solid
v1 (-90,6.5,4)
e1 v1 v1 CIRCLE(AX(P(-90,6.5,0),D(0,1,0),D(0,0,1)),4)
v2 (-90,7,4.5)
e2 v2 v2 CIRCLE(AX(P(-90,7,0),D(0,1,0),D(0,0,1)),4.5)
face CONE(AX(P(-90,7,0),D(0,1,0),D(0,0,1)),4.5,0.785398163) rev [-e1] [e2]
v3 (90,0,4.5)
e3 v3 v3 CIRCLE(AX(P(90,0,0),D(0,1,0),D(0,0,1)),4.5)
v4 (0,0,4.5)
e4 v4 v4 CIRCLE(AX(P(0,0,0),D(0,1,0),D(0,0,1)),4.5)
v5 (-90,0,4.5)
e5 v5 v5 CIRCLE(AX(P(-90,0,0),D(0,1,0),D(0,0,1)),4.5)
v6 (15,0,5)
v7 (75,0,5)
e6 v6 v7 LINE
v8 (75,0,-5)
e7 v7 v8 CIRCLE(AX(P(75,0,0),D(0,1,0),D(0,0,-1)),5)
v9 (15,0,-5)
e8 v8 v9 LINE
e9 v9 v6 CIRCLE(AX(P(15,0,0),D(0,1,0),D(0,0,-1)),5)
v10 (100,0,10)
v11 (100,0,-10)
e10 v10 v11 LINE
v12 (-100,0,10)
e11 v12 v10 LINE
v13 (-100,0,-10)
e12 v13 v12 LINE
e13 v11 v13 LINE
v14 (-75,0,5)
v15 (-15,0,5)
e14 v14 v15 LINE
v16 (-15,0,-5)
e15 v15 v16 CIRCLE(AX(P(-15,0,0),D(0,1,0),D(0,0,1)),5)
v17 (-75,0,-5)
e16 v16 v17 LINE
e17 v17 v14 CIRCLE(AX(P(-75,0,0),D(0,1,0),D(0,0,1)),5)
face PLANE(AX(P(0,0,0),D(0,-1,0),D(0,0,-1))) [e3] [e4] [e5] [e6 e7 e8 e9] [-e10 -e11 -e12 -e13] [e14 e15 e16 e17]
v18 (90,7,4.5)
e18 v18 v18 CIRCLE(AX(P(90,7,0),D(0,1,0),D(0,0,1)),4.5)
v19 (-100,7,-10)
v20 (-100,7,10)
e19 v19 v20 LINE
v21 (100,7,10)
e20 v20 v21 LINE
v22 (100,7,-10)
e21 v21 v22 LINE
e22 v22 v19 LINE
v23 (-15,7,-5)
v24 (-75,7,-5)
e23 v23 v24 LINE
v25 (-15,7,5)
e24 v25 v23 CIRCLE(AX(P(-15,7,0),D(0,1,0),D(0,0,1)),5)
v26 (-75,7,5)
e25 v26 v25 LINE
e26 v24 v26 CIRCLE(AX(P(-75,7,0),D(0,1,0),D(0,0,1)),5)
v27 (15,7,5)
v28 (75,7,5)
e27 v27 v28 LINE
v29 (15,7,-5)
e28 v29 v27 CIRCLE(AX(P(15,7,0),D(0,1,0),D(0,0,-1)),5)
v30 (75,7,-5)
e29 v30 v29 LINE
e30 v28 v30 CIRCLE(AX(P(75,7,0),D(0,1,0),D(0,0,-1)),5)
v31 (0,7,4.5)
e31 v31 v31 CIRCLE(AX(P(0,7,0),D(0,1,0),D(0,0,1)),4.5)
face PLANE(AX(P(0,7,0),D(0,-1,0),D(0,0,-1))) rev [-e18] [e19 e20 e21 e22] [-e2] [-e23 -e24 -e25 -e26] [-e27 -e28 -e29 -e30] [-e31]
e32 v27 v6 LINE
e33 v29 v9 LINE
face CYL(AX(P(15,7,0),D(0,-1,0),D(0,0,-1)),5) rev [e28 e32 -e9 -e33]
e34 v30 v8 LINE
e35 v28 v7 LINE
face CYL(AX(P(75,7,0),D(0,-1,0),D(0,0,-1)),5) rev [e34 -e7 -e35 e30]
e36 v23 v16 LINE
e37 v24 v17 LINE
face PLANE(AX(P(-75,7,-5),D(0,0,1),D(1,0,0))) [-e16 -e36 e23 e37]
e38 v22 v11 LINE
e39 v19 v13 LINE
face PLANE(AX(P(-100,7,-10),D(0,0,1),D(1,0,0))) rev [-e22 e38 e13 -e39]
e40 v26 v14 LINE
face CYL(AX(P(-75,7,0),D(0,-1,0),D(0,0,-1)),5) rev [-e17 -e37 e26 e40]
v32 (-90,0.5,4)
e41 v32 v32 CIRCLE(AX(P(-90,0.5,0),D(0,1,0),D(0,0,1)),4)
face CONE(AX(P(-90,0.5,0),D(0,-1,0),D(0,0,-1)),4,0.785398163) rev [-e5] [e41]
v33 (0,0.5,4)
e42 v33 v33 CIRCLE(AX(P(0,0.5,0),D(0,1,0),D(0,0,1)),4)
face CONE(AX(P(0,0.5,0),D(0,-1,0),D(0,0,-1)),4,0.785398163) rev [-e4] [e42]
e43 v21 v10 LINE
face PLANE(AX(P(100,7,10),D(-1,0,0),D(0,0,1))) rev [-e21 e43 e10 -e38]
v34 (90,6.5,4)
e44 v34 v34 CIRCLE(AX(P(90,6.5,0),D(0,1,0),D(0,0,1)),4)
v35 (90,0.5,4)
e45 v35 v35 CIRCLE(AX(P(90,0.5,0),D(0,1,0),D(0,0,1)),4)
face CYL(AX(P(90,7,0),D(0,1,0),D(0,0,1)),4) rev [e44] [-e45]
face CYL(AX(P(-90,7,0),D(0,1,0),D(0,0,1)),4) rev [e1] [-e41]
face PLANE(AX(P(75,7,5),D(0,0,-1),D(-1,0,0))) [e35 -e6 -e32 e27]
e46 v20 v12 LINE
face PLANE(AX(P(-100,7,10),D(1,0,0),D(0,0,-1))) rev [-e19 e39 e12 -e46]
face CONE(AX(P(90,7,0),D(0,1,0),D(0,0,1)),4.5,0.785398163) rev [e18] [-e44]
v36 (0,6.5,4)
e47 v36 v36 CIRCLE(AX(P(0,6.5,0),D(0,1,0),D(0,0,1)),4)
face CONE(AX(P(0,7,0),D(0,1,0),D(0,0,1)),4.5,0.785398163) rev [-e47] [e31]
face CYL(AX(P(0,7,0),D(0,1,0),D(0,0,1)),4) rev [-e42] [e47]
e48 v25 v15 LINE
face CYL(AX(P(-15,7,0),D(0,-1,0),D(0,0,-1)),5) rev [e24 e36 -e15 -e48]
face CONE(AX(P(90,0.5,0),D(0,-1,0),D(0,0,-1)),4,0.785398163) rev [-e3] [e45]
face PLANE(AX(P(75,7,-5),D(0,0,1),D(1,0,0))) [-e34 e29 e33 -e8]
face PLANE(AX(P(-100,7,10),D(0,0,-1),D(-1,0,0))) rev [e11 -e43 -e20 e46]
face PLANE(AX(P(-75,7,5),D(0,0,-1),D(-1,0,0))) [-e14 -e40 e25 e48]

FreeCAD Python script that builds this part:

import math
import FreeCAD as App
import Part
import Sketcher
from FreeCAD import Vector
Q = App.Units.Quantity


def add_polygon(sketch, points):
    """Adds a closed chain of lines whose ends are joined by coincident constraints."""
    first, n = sketch.GeometryCount, len(points)
    for a, b in zip(points, points[1:] + points[:1]):
        sketch.addGeometry(Part.LineSegment(App.Vector(*a, 0), App.Vector(*b, 0)), False)
    for i in range(n):
        sketch.addConstraint(Sketcher.Constraint("Coincident", first + i, 2, first + (i + 1) % n, 1))

doc = App.newDocument("Part")
params = doc.addObject("Spreadsheet::Sheet", "Params")
for row, (alias, value) in enumerate([
    ("sketch1_radius", "5 mm"),
    ("sketch1_width", "200 mm"),
    ("sketch1_width2", "60 mm"),
    ("sketch1_height", "20 mm"),
    ("pad1_length", "7 mm"),
    ("sketch2_width", "7 mm"),
    ("sketch2_width2", "6 mm"),
    ("sketch2_height", "4.5 mm"),
    ("groove_angle", "360 deg"),
    ("linearpattern_pitch", "90 mm"),
    ("linearpattern2_pitch", "180 mm"),
], start=1):
    params.set(f"A{row}", alias)
    params.set(f"B{row}", "=" + value)
    params.setAlias(f"B{row}", alias)

body = doc.addObject("PartDesign::Body", "Body")

# Sketch on XZ plane
sketch1 = doc.addObject("Sketcher::SketchObject", "Sketch")
body.addObject(sketch1)
sketch1.AttachmentSupport = (doc.XZ_Plane, [""])
sketch1.MapMode = "FlatFace"
add_polygon(sketch1, [(-100, -10), (-100, 10), (100, 10), (100, -10)])  # lines 0-3
sketch1.addGeometry(Part.ArcOfCircle(Part.Circle(Vector(-75, 0, 0), Vector(0, 0, 1), 5), math.radians(90), math.radians(270)), False)  # 4
sketch1.addGeometry(Part.LineSegment(Vector(-75, -5, 0), Vector(-15, -5, 0)), False)  # 5
sketch1.addGeometry(Part.ArcOfCircle(Part.Circle(Vector(-15, 0, 0), Vector(0, 0, 1), 5), math.radians(-90), math.radians(90)), False)  # 6
sketch1.addGeometry(Part.LineSegment(Vector(-15, 5, 0), Vector(-75, 5, 0)), False)  # 7
sketch1.addGeometry(Part.LineSegment(Vector(15, -5, 0), Vector(75, -5, 0)), False)  # 8
sketch1.addGeometry(Part.ArcOfCircle(Part.Circle(Vector(75, 0, 0), Vector(0, 0, 1), 5), math.radians(-90), math.radians(90)), False)  # 9
sketch1.addGeometry(Part.LineSegment(Vector(75, 5, 0), Vector(15, 5, 0)), False)  # 10
sketch1.addGeometry(Part.ArcOfCircle(Part.Circle(Vector(15, 0, 0), Vector(0, 0, 1), 5), math.radians(90), math.radians(270)), False)  # 11
sketch1.addConstraint(Sketcher.Constraint("Tangent", 4, 2, 5, 1))
sketch1.addConstraint(Sketcher.Constraint("Tangent", 5, 2, 6, 1))
sketch1.addConstraint(Sketcher.Constraint("Tangent", 6, 2, 7, 1))
sketch1.addConstraint(Sketcher.Constraint("Tangent", 7, 2, 4, 1))
sketch1.addConstraint(Sketcher.Constraint("Tangent", 8, 2, 9, 1))
sketch1.addConstraint(Sketcher.Constraint("Tangent", 9, 2, 10, 1))
sketch1.addConstraint(Sketcher.Constraint("Tangent", 10, 2, 11, 1))
sketch1.addConstraint(Sketcher.Constraint("Tangent", 11, 2, 8, 1))
sketch1.addConstraint(Sketcher.Constraint("Vertical", 0))
sketch1.addConstraint(Sketcher.Constraint("Horizontal", 1))
sketch1.addConstraint(Sketcher.Constraint("Vertical", 2))
sketch1.addConstraint(Sketcher.Constraint("Horizontal", 3))
sketch1.addConstraint(Sketcher.Constraint("Horizontal", 5))
sketch1.addConstraint(Sketcher.Constraint("Horizontal", 7))
sketch1.addConstraint(Sketcher.Constraint("Horizontal", 8))
sketch1.addConstraint(Sketcher.Constraint("Horizontal", 10))
sketch1.addConstraint(Sketcher.Constraint("Equal", 6, 9))
sketch1.addConstraint(Sketcher.Constraint("Symmetric", 4, 3, 9, 3, -1, 1))
sketch1.addConstraint(Sketcher.Constraint("Symmetric", 0, 2, 2, 2, -1, 1))
sketch1.addConstraint(Sketcher.Constraint("Symmetric", 6, 3, 11, 3, -2))
sketch1.addConstraint(Sketcher.Constraint("Radius", 4, Q("5 mm")))
sketch1.addConstraint(Sketcher.Constraint("DistanceX", 1, 1, 1, 2, Q("200 mm")))
sketch1.addConstraint(Sketcher.Constraint("DistanceX", 5, 1, 5, 2, Q("60 mm")))
sketch1.addConstraint(Sketcher.Constraint("DistanceY", 0, 1, 0, 2, Q("20 mm")))
sketch1.addConstraint(Sketcher.Constraint("DistanceX", 4, 3, -1, 1, Q("75 mm")))
sketch1.setExpression("Constraints[24]", "Params.sketch1_radius")
sketch1.setExpression("Constraints[25]", "Params.sketch1_width")
sketch1.setExpression("Constraints[26]", "Params.sketch1_width2")
sketch1.setExpression("Constraints[27]", "Params.sketch1_height")
pad1 = doc.addObject("PartDesign::Pad", "Pad")
body.addObject(pad1)
pad1.Profile = sketch1
pad1.setExpression("Length", "Params.pad1_length")
pad1.Reversed = True

# Sketch on YZ plane
sketch2 = doc.addObject("Sketcher::SketchObject", "Sketch001")
body.addObject(sketch2)
sketch2.AttachmentSupport = (doc.YZ_Plane, [""])
sketch2.MapMode = "FlatFace"
sketch2.AttachmentOffset = App.Placement(Vector(0, 0, -90), App.Rotation())
add_polygon(sketch2, [(0, 0), (7, 0), (7, 4.5), (6.5, 4), (0.5, 4), (0, 4.5)])  # lines 0-5
sketch2.addConstraint(Sketcher.Constraint("Horizontal", 0))
sketch2.addConstraint(Sketcher.Constraint("Vertical", 1))
sketch2.addConstraint(Sketcher.Constraint("Horizontal", 3))
sketch2.addConstraint(Sketcher.Constraint("Vertical", 5))
sketch2.addConstraint(Sketcher.Constraint("Coincident", 5, 2, -1, 1))
sketch2.addConstraint(Sketcher.Constraint("Perpendicular", 2, 4))
sketch2.addConstraint(Sketcher.Constraint("Horizontal", 1, 2, 4, 2))
sketch2.addConstraint(Sketcher.Constraint("Equal", 2, 4))
sketch2.addConstraint(Sketcher.Constraint("DistanceX", 0, 1, 0, 2, Q("7 mm")))
sketch2.addConstraint(Sketcher.Constraint("DistanceX", 3, 2, 3, 1, Q("6 mm")))
sketch2.addConstraint(Sketcher.Constraint("DistanceY", 1, 1, 1, 2, Q("4.5 mm")))
sketch2.setExpression("Constraints[14]", "Params.sketch2_width")
sketch2.setExpression("Constraints[15]", "Params.sketch2_width2")
sketch2.setExpression("Constraints[16]", "Params.sketch2_height")
groove = doc.addObject("PartDesign::Groove", "Groove")
body.addObject(groove)
groove.Profile = sketch2
groove.ReferenceAxis = (sketch2, ["H_Axis"])
groove.setExpression("Angle", "Params.groove_angle")
doc.recompute()

linearpattern = doc.addObject("PartDesign::LinearPattern", "LinearPattern")
body.addObject(linearpattern)
linearpattern.Originals = [groove]
linearpattern.Direction = (doc.X_Axis, [""])
linearpattern.Mode = "offset"
linearpattern.setExpression("Offset", "Params.linearpattern_pitch")
linearpattern.Occurrences = 2
body.Tip = linearpattern
doc.recompute()

linearpattern2 = doc.addObject("PartDesign::LinearPattern", "LinearPattern001")
body.addObject(linearpattern2)
linearpattern2.Originals = [groove]
linearpattern2.Direction = (doc.X_Axis, [""])
linearpattern2.Mode = "offset"
linearpattern2.setExpression("Offset", "Params.linearpattern2_pitch")
linearpattern2.Occurrences = 2
body.Tip = linearpattern2

doc.recompute()
